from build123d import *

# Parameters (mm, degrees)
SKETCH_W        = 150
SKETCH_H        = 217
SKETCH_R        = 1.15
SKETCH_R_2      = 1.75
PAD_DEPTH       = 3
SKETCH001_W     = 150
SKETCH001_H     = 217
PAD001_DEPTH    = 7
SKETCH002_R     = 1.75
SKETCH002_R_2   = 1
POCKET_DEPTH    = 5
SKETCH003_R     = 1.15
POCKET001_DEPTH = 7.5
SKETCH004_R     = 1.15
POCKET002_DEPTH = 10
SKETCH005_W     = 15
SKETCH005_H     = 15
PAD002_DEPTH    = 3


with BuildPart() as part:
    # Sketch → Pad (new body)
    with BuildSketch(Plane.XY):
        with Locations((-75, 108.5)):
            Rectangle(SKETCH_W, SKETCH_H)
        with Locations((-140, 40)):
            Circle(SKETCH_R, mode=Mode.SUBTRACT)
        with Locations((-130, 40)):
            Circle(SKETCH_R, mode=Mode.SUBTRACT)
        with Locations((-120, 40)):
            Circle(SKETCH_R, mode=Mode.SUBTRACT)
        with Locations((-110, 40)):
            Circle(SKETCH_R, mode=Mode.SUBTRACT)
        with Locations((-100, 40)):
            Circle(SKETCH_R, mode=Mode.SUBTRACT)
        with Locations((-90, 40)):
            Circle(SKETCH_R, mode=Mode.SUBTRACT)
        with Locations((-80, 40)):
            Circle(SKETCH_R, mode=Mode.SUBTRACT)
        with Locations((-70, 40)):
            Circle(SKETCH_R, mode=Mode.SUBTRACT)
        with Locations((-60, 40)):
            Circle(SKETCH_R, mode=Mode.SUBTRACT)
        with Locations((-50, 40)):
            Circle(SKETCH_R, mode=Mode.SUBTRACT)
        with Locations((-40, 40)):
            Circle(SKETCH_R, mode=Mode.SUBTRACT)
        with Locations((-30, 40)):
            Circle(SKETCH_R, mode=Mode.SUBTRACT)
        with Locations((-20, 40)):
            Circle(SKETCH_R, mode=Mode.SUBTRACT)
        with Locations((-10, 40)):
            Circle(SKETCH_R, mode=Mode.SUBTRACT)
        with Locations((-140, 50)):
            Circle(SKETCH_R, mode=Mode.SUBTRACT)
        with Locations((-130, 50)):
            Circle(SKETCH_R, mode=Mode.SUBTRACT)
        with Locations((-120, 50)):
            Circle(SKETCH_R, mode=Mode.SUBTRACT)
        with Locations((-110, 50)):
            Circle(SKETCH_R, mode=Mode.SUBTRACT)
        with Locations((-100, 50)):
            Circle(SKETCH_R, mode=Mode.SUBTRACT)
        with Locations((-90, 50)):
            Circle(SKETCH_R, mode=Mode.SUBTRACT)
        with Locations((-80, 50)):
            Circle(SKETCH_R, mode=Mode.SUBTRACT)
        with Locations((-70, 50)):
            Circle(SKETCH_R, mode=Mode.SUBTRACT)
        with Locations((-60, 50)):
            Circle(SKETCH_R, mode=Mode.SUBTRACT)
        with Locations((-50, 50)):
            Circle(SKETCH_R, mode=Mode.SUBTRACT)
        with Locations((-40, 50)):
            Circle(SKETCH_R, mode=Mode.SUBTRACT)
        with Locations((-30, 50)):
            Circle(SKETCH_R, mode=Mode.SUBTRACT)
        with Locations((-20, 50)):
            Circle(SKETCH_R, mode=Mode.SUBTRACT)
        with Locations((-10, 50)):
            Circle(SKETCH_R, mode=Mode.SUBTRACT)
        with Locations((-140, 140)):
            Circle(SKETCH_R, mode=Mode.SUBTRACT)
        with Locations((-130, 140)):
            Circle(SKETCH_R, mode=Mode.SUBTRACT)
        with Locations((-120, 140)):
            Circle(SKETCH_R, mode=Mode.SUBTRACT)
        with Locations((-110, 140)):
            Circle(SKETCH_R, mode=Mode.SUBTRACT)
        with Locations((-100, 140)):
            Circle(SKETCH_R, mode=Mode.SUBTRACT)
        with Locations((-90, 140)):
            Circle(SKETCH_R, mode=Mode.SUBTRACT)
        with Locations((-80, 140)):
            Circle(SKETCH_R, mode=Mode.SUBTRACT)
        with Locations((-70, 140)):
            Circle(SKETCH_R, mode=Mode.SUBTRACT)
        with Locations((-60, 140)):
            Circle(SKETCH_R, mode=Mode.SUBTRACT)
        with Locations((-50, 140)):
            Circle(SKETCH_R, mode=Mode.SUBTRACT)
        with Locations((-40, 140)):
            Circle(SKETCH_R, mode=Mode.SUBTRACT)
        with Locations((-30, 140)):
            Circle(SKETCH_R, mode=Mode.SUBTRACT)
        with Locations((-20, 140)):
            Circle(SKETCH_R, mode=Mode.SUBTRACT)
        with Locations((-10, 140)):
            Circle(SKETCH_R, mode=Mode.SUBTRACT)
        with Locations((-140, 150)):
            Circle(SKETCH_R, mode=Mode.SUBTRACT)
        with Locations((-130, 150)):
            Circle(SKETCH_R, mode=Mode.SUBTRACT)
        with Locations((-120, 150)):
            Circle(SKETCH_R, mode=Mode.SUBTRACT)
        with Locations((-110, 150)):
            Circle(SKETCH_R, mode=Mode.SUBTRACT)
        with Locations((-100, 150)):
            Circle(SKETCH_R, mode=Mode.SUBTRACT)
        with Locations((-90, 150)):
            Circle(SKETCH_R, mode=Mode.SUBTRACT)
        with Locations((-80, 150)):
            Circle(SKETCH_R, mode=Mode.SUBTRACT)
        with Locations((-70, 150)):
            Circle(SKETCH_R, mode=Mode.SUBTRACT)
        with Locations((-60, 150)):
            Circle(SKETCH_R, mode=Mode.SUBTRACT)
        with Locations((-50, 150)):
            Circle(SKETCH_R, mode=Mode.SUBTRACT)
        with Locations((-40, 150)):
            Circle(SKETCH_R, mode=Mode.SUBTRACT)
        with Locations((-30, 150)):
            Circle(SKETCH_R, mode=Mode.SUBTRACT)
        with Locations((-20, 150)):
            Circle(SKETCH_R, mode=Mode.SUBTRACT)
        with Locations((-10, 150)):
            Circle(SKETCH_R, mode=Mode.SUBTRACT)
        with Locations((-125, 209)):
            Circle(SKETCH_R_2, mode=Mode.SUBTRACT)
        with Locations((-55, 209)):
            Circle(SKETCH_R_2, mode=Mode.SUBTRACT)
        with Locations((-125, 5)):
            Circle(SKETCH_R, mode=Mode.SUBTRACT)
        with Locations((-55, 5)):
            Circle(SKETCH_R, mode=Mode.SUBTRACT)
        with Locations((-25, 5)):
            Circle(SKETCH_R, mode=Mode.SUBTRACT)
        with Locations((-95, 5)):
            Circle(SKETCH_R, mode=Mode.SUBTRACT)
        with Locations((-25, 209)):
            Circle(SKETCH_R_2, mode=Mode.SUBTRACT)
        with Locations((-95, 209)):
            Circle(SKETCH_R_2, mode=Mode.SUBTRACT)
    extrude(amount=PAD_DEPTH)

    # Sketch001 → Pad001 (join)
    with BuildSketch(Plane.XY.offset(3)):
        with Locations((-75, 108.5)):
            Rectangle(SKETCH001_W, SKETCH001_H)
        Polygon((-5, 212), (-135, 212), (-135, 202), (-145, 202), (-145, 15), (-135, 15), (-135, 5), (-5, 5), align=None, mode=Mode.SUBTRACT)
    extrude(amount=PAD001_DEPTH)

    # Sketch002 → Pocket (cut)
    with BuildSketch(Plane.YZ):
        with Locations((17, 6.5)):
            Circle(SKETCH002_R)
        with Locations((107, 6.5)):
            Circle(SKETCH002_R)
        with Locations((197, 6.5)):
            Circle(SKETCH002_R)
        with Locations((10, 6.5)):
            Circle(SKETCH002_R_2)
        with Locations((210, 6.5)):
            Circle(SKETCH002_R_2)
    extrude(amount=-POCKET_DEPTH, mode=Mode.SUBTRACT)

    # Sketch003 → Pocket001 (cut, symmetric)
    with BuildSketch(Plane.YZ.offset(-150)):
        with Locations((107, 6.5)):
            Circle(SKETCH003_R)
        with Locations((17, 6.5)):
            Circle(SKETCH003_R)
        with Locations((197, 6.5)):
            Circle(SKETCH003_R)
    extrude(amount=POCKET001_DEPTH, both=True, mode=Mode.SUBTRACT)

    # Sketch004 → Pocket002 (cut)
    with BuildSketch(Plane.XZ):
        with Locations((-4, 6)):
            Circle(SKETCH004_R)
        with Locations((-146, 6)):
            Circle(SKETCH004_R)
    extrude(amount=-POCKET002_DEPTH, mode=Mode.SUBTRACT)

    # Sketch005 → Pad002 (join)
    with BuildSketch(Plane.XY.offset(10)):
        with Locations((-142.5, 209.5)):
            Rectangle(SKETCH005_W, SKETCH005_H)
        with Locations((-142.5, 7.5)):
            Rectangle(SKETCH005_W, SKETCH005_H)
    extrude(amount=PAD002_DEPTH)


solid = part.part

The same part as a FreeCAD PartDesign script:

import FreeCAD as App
import Part
import Sketcher

V = App.Vector


def add_polygon(sketch, points):
    """Adds a closed chain of lines whose ends are joined by coincident constraints."""
    first, n = sketch.GeometryCount, len(points)
    for a, b in zip(points, points[1:] + points[:1]):
        sketch.addGeometry(Part.LineSegment(App.Vector(*a, 0), App.Vector(*b, 0)), False)
    for i in range(n):
        sketch.addConstraint(Sketcher.Constraint("Coincident", first + i, 2, first + (i + 1) % n, 1))

doc = App.newDocument("Part")
params = doc.addObject("Spreadsheet::Sheet", "Params")
for row, (alias, value) in enumerate([
    ("sketch1_diameter", "2.3 mm"),
    ("sketch1_diameter2", "3.5 mm"),
    ("sketch1_width", "150 mm"),
    ("sketch1_height", "217 mm"),
    ("pad1_length", "3 mm"),
    ("sketch2_width", "150 mm"),
    ("sketch2_width2", "130 mm"),
    ("sketch2_width3", "10 mm"),
    ("sketch2_height", "217 mm"),
    ("sketch2_height2", "207 mm"),
    ("pad2_length", "7 mm"),
    ("sketch3_diameter", "2 mm"),
    ("sketch3_diameter2", "3.5 mm"),
    ("pocket1_length", "5 mm"),
    ("sketch4_diameter", "2.3 mm"),
    ("pocket2_length", "15 mm"),
    ("sketch5_diameter", "2.3 mm"),
    ("pocket3_length", "10 mm"),
    ("sketch6_width", "15 mm"),
    ("pad3_length", "3 mm"),
], start=1):
    params.set(f"A{row}", alias)
    params.set(f"B{row}", "=" + value)
    params.setAlias(f"B{row}", alias)

body = doc.addObject("PartDesign::Body", "Body")

# Sketch on XY plane
sketch1 = body.newObject("Sketcher::SketchObject", "Sketch")
sketch1.AttachmentSupport = (doc.getObject("XY_Plane"), [""])
sketch1.MapMode = "FlatFace"
add_polygon(sketch1, [(-150, 217), (-150, 0), (0, 0), (0, 217)])  # lines 0-3
sketch1.addGeometry(Part.Circle(V(-125, 5, 0), V(0, 0, 1), 1.15), False)  # 4
sketch1.addGeometry(Part.Circle(V(-140, 40, 0), V(0, 0, 1), 1.15), False)  # 5
sketch1.addGeometry(Part.Circle(V(-130, 40, 0), V(0, 0, 1), 1.15), False)  # 6
sketch1.addGeometry(Part.Circle(V(-140, 50, 0), V(0, 0, 1), 1.15), False)  # 7
sketch1.addGeometry(Part.Circle(V(-130, 50, 0), V(0, 0, 1), 1.15), False)  # 8
sketch1.addGeometry(Part.Circle(V(-120, 40, 0), V(0, 0, 1), 1.15), False)  # 9
sketch1.addGeometry(Part.Circle(V(-110, 40, 0), V(0, 0, 1), 1.15), False)  # 10
sketch1.addGeometry(Part.Circle(V(-120, 50, 0), V(0, 0, 1), 1.15), False)  # 11
sketch1.addGeometry(Part.Circle(V(-110, 50, 0), V(0, 0, 1), 1.15), False)  # 12
sketch1.addGeometry(Part.Circle(V(-95, 5, 0), V(0, 0, 1), 1.15), False)  # 13
sketch1.addGeometry(Part.Circle(V(-100, 40, 0), V(0, 0, 1), 1.15), False)  # 14
sketch1.addGeometry(Part.Circle(V(-100, 50, 0), V(0, 0, 1), 1.15), False)  # 15
sketch1.addGeometry(Part.Circle(V(-90, 40, 0), V(0, 0, 1), 1.15), False)  # 16
sketch1.addGeometry(Part.Circle(V(-80, 40, 0), V(0, 0, 1), 1.15), False)  # 17
sketch1.addGeometry(Part.Circle(V(-90, 50, 0), V(0, 0, 1), 1.15), False)  # 18
sketch1.addGeometry(Part.Circle(V(-80, 50, 0), V(0, 0, 1), 1.15), False)  # 19
sketch1.addGeometry(Part.Circle(V(-55, 5, 0), V(0, 0, 1), 1.15), False)  # 20
sketch1.addGeometry(Part.Circle(V(-70, 40, 0), V(0, 0, 1), 1.15), False)  # 21
sketch1.addGeometry(Part.Circle(V(-60, 40, 0), V(0, 0, 1), 1.15), False)  # 22
sketch1.addGeometry(Part.Circle(V(-70, 50, 0), V(0, 0, 1), 1.15), False)  # 23
sketch1.addGeometry(Part.Circle(V(-60, 50, 0), V(0, 0, 1), 1.15), False)  # 24
sketch1.addGeometry(Part.Circle(V(-50, 40, 0), V(0, 0, 1), 1.15), False)  # 25
sketch1.addGeometry(Part.Circle(V(-50, 50, 0), V(0, 0, 1), 1.15), False)  # 26
sketch1.addGeometry(Part.Circle(V(-25, 5, 0), V(0, 0, 1), 1.15), False)  # 27
sketch1.addGeometry(Part.Circle(V(-40, 40, 0), V(0, 0, 1), 1.15), False)  # 28
sketch1.addGeometry(Part.Circle(V(-30, 40, 0), V(0, 0, 1), 1.15), False)  # 29
sketch1.addGeometry(Part.Circle(V(-40, 50, 0), V(0, 0, 1), 1.15), False)  # 30
sketch1.addGeometry(Part.Circle(V(-30, 50, 0), V(0, 0, 1), 1.15), False)  # 31
sketch1.addGeometry(Part.Circle(V(-20, 40, 0), V(0, 0, 1), 1.15), False)  # 32
sketch1.addGeometry(Part.Circle(V(-10, 40, 0), V(0, 0, 1), 1.15), False)  # 33
sketch1.addGeometry(Part.Circle(V(-20, 50, 0), V(0, 0, 1), 1.15), False)  # 34
sketch1.addGeometry(Part.Circle(V(-10, 50, 0), V(0, 0, 1), 1.15), False)  # 35
sketch1.addGeometry(Part.Circle(V(-140, 140, 0), V(0, 0, 1), 1.15), False)  # 36
sketch1.addGeometry(Part.Circle(V(-130, 140, 0), V(0, 0, 1), 1.15), False)  # 37
sketch1.addGeometry(Part.Circle(V(-140, 150, 0), V(0, 0, 1), 1.15), False)  # 38
sketch1.addGeometry(Part.Circle(V(-130, 150, 0), V(0, 0, 1), 1.15), False)  # 39
sketch1.addGeometry(Part.Circle(V(-120, 140, 0), V(0, 0, 1), 1.15), False)  # 40
sketch1.addGeometry(Part.Circle(V(-110, 140, 0), V(0, 0, 1), 1.15), False)  # 41
sketch1.addGeometry(Part.Circle(V(-120, 150, 0), V(0, 0, 1), 1.15), False)  # 42
sketch1.addGeometry(Part.Circle(V(-110, 150, 0), V(0, 0, 1), 1.15), False)  # 43
sketch1.addGeometry(Part.Circle(V(-100, 140, 0), V(0, 0, 1), 1.15), False)  # 44
sketch1.addGeometry(Part.Circle(V(-100, 150, 0), V(0, 0, 1), 1.15), False)  # 45
sketch1.addGeometry(Part.Circle(V(-90, 140, 0), V(0, 0, 1), 1.15), False)  # 46
sketch1.addGeometry(Part.Circle(V(-80, 140, 0), V(0, 0, 1), 1.15), False)  # 47
sketch1.addGeometry(Part.Circle(V(-90, 150, 0), V(0, 0, 1), 1.15), False)  # 48
sketch1.addGeometry(Part.Circle(V(-80, 150, 0), V(0, 0, 1), 1.15), False)  # 49
sketch1.addGeometry(Part.Circle(V(-125, 209, 0), V(0, 0, 1), 1.75), False)  # 50
sketch1.addGeometry(Part.Circle(V(-95, 209, 0), V(0, 0, 1), 1.75), False)  # 51
sketch1.addGeometry(Part.Circle(V(-70, 140, 0), V(0, 0, 1), 1.15), False)  # 52
sketch1.addGeometry(Part.Circle(V(-60, 140, 0), V(0, 0, 1), 1.15), False)  # 53
sketch1.addGeometry(Part.Circle(V(-70, 150, 0), V(0, 0, 1), 1.15), False)  # 54
sketch1.addGeometry(Part.Circle(V(-60, 150, 0), V(0, 0, 1), 1.15), False)  # 55
sketch1.addGeometry(Part.Circle(V(-50, 140, 0), V(0, 0, 1), 1.15), False)  # 56
sketch1.addGeometry(Part.Circle(V(-50, 150, 0), V(0, 0, 1), 1.15), False)  # 57
sketch1.addGeometry(Part.Circle(V(-40, 140, 0), V(0, 0, 1), 1.15), False)  # 58
sketch1.addGeometry(Part.Circle(V(-30, 140, 0), V(0, 0, 1), 1.15), False)  # 59
sketch1.addGeometry(Part.Circle(V(-40, 150, 0), V(0, 0, 1), 1.15), False)  # 60
sketch1.addGeometry(Part.Circle(V(-30, 150, 0), V(0, 0, 1), 1.15), False)  # 61
sketch1.addGeometry(Part.Circle(V(-20, 140, 0), V(0, 0, 1), 1.15), False)  # 62
sketch1.addGeometry(Part.Circle(V(-10, 140, 0), V(0, 0, 1), 1.15), False)  # 63
sketch1.addGeometry(Part.Circle(V(-20, 150, 0), V(0, 0, 1), 1.15), False)  # 64
sketch1.addGeometry(Part.Circle(V(-10, 150, 0), V(0, 0, 1), 1.15), False)  # 65
sketch1.addGeometry(Part.Circle(V(-55, 209, 0), V(0, 0, 1), 1.75), False)  # 66
sketch1.addGeometry(Part.Circle(V(-25, 209, 0), V(0, 0, 1), 1.75), False)  # 67
sketch1.addConstraint(Sketcher.Constraint("Vertical", 0))
sketch1.addConstraint(Sketcher.Constraint("Horizontal", 1))
sketch1.addConstraint(Sketcher.Constraint("Vertical", 2))
sketch1.addConstraint(Sketcher.Constraint("Horizontal", 3))
sketch1.addConstraint(Sketcher.Constraint("Coincident", 1, 2, -1, 1))
sketch1.addConstraint(Sketcher.Constraint("Equal", 4, 5))
sketch1.addConstraint(Sketcher.Constraint("Equal", 5, 6))
sketch1.addConstraint(Sketcher.Constraint("Equal", 6, 7))
sketch1.addConstraint(Sketcher.Constraint("Equal", 7, 8))
sketch1.addConstraint(Sketcher.Constraint("Equal", 8, 9))
sketch1.addConstraint(Sketcher.Constraint("Equal", 9, 10))
sketch1.addConstraint(Sketcher.Constraint("Equal", 10, 11))
sketch1.addConstraint(Sketcher.Constraint("Equal", 11, 12))
sketch1.addConstraint(Sketcher.Constraint("Equal", 12, 13))
sketch1.addConstraint(Sketcher.Constraint("Equal", 13, 14))
sketch1.addConstraint(Sketcher.Constraint("Equal", 14, 15))
sketch1.addConstraint(Sketcher.Constraint("Equal", 15, 16))
sketch1.addConstraint(Sketcher.Constraint("Equal", 16, 17))
sketch1.addConstraint(Sketcher.Constraint("Equal", 17, 18))
sketch1.addConstraint(Sketcher.Constraint("Equal", 18, 19))
sketch1.addConstraint(Sketcher.Constraint("Equal", 19, 20))
sketch1.addConstraint(Sketcher.Constraint("Equal", 20, 21))
sketch1.addConstraint(Sketcher.Constraint("Equal", 21, 22))
sketch1.addConstraint(Sketcher.Constraint("Equal", 22, 23))
sketch1.addConstraint(Sketcher.Constraint("Equal", 23, 24))
sketch1.addConstraint(Sketcher.Constraint("Equal", 24, 25))
sketch1.addConstraint(Sketcher.Constraint("Equal", 25, 26))
sketch1.addConstraint(Sketcher.Constraint("Equal", 26, 27))
sketch1.addConstraint(Sketcher.Constraint("Equal", 27, 28))
sketch1.addConstraint(Sketcher.Constraint("Equal", 28, 29))
sketch1.addConstraint(Sketcher.Constraint("Equal", 29, 30))
sketch1.addConstraint(Sketcher.Constraint("Equal", 30, 31))
sketch1.addConstraint(Sketcher.Constraint("Equal", 31, 32))
sketch1.addConstraint(Sketcher.Constraint("Equal", 32, 33))
sketch1.addConstraint(Sketcher.Constraint("Equal", 33, 34))
sketch1.addConstraint(Sketcher.Constraint("Equal", 34, 35))
sketch1.addConstraint(Sketcher.Constraint("Equal", 35, 36))
sketch1.addConstraint(Sketcher.Constraint("Equal", 36, 37))
sketch1.addConstraint(Sketcher.Constraint("Equal", 37, 38))
sketch1.addConstraint(Sketcher.Constraint("Equal", 38, 39))
sketch1.addConstraint(Sketcher.Constraint("Equal", 39, 40))
sketch1.addConstraint(Sketcher.Constraint("Equal", 40, 41))
sketch1.addConstraint(Sketcher.Constraint("Equal", 41, 42))
sketch1.addConstraint(Sketcher.Constraint("Equal", 42, 43))
sketch1.addConstraint(Sketcher.Constraint("Equal", 43, 44))
sketch1.addConstraint(Sketcher.Constraint("Equal", 44, 45))
sketch1.addConstraint(Sketcher.Constraint("Equal", 45, 46))
sketch1.addConstraint(Sketcher.Constraint("Equal", 46, 47))
sketch1.addConstraint(Sketcher.Constraint("Equal", 47, 48))
sketch1.addConstraint(Sketcher.Constraint("Equal", 48, 49))
sketch1.addConstraint(Sketcher.Constraint("Equal", 50, 51))
sketch1.addConstraint(Sketcher.Constraint("Equal", 49, 52))
sketch1.addConstraint(Sketcher.Constraint("Equal", 52, 53))
sketch1.addConstraint(Sketcher.Constraint("Equal", 53, 54))
sketch1.addConstraint(Sketcher.Constraint("Equal", 54, 55))
sketch1.addConstraint(Sketcher.Constraint("Equal", 55, 56))
sketch1.addConstraint(Sketcher.Constraint("Equal", 56, 57))
sketch1.addConstraint(Sketcher.Constraint("Equal", 57, 58))
sketch1.addConstraint(Sketcher.Constraint("Equal", 58, 59))
sketch1.addConstraint(Sketcher.Constraint("Equal", 59, 60))
sketch1.addConstraint(Sketcher.Constraint("Equal", 60, 61))
sketch1.addConstraint(Sketcher.Constraint("Equal", 61, 62))
sketch1.addConstraint(Sketcher.Constraint("Equal", 62, 63))
sketch1.addConstraint(Sketcher.Constraint("Equal", 63, 64))
sketch1.addConstraint(Sketcher.Constraint("Equal", 64, 65))
sketch1.addConstraint(Sketcher.Constraint("Equal", 51, 66))
sketch1.addConstraint(Sketcher.Constraint("Equal", 66, 67))
sketch1.addConstraint(Sketcher.Constraint("Horizontal", 5, 3, 6, 3))
sketch1.addConstraint(Sketcher.Constraint("Horizontal", 7, 3, 8, 3))
sketch1.addConstraint(Sketcher.Constraint("Horizontal", 6, 3, 9, 3))
sketch1.addConstraint(Sketcher.Constraint("Horizontal", 9, 3, 10, 3))
sketch1.addConstraint(Sketcher.Constraint("Horizontal", 8, 3, 11, 3))
sketch1.addConstraint(Sketcher.Constraint("Horizontal", 11, 3, 12, 3))
sketch1.addConstraint(Sketcher.Constraint("Horizontal", 4, 3, 13, 3))
sketch1.addConstraint(Sketcher.Constraint("Horizontal", 10, 3, 14, 3))
sketch1.addConstraint(Sketcher.Constraint("Horizontal", 12, 3, 15, 3))
sketch1.addConstraint(Sketcher.Constraint("Horizontal", 14, 3, 16, 3))
sketch1.addConstraint(Sketcher.Constraint("Horizontal", 16, 3, 17, 3))
sketch1.addConstraint(Sketcher.Constraint("Horizontal", 15, 3, 18, 3))
sketch1.addConstraint(Sketcher.Constraint("Horizontal", 18, 3, 19, 3))
sketch1.addConstraint(Sketcher.Constraint("Horizontal", 13, 3, 20, 3))
sketch1.addConstraint(Sketcher.Constraint("Horizontal", 17, 3, 21, 3))
sketch1.addConstraint(Sketcher.Constraint("Horizontal", 21, 3, 22, 3))
sketch1.addConstraint(Sketcher.Constraint("Horizontal", 19, 3, 23, 3))
sketch1.addConstraint(Sketcher.Constraint("Horizontal", 23, 3, 24, 3))
sketch1.addConstraint(Sketcher.Constraint("Horizontal", 22, 3, 25, 3))
sketch1.addConstraint(Sketcher.Constraint("Horizontal", 24, 3, 26, 3))
sketch1.addConstraint(Sketcher.Constraint("Horizontal", 20, 3, 27, 3))
sketch1.addConstraint(Sketcher.Constraint("Horizontal", 25, 3, 28, 3))
sketch1.addConstraint(Sketcher.Constraint("Horizontal", 28, 3, 29, 3))
sketch1.addConstraint(Sketcher.Constraint("Horizontal", 26, 3, 30, 3))
sketch1.addConstraint(Sketcher.Constraint("Horizontal", 30, 3, 31, 3))
sketch1.addConstraint(Sketcher.Constraint("Horizontal", 29, 3, 32, 3))
sketch1.addConstraint(Sketcher.Constraint("Horizontal", 32, 3, 33, 3))
sketch1.addConstraint(Sketcher.Constraint("Horizontal", 31, 3, 34, 3))
sketch1.addConstraint(Sketcher.Constraint("Horizontal", 34, 3, 35, 3))
sketch1.addConstraint(Sketcher.Constraint("Horizontal", 36, 3, 37, 3))
sketch1.addConstraint(Sketcher.Constraint("Horizontal", 38, 3, 39, 3))
sketch1.addConstraint(Sketcher.Constraint("Horizontal", 37, 3, 40, 3))
sketch1.addConstraint(Sketcher.Constraint("Horizontal", 40, 3, 41, 3))
sketch1.addConstraint(Sketcher.Constraint("Horizontal", 39, 3, 42, 3))
sketch1.addConstraint(Sketcher.Constraint("Horizontal", 42, 3, 43, 3))
sketch1.addConstraint(Sketcher.Constraint("Horizontal", 41, 3, 44, 3))
sketch1.addConstraint(Sketcher.Constraint("Horizontal", 43, 3, 45, 3))
sketch1.addConstraint(Sketcher.Constraint("Horizontal", 44, 3, 46, 3))
sketch1.addConstraint(Sketcher.Constraint("Horizontal", 46, 3, 47, 3))
sketch1.addConstraint(Sketcher.Constraint("Horizontal", 45, 3, 48, 3))
sketch1.addConstraint(Sketcher.Constraint("Horizontal", 48, 3, 49, 3))
sketch1.addConstraint(Sketcher.Constraint("Horizontal", 50, 3, 51, 3))
sketch1.addConstraint(Sketcher.Constraint("Horizontal", 47, 3, 52, 3))
sketch1.addConstraint(Sketcher.Constraint("Horizontal", 52, 3, 53, 3))
sketch1.addConstraint(Sketcher.Constraint("Horizontal", 49, 3, 54, 3))
sketch1.addConstraint(Sketcher.Constraint("Horizontal", 54, 3, 55, 3))
sketch1.addConstraint(Sketcher.Constraint("Horizontal", 53, 3, 56, 3))
sketch1.addConstraint(Sketcher.Constraint("Horizontal", 55, 3, 57, 3))
sketch1.addConstraint(Sketcher.Constraint("Horizontal", 56, 3, 58, 3))
sketch1.addConstraint(Sketcher.Constraint("Horizontal", 58, 3, 59, 3))
sketch1.addConstraint(Sketcher.Constraint("Horizontal", 57, 3, 60, 3))
sketch1.addConstraint(Sketcher.Constraint("Horizontal", 60, 3, 61, 3))
sketch1.addConstraint(Sketcher.Constraint("Horizontal", 59, 3, 62, 3))
sketch1.addConstraint(Sketcher.Constraint("Horizontal", 62, 3, 63, 3))
sketch1.addConstraint(Sketcher.Constraint("Horizontal", 61, 3, 64, 3))
sketch1.addConstraint(Sketcher.Constraint("Horizontal", 64, 3, 65, 3))
sketch1.addConstraint(Sketcher.Constraint("Horizontal", 51, 3, 66, 3))
sketch1.addConstraint(Sketcher.Constraint("Horizontal", 66, 3, 67, 3))
sketch1.addConstraint(Sketcher.Constraint("Vertical", 5, 3, 7, 3))
sketch1.addConstraint(Sketcher.Constraint("Vertical", 6, 3, 8, 3))
sketch1.addConstraint(Sketcher.Constraint("Vertical", 9, 3, 11, 3))
sketch1.addConstraint(Sketcher.Constraint("Vertical", 10, 3, 12, 3))
sketch1.addConstraint(Sketcher.Constraint("Vertical", 14, 3, 15, 3))
sketch1.addConstraint(Sketcher.Constraint("Vertical", 16, 3, 18, 3))
sketch1.addConstraint(Sketcher.Constraint("Vertical", 17, 3, 19, 3))
sketch1.addConstraint(Sketcher.Constraint("Vertical", 21, 3, 23, 3))
sketch1.addConstraint(Sketcher.Constraint("Vertical", 22, 3, 24, 3))
sketch1.addConstraint(Sketcher.Constraint("Vertical", 25, 3, 26, 3))
sketch1.addConstraint(Sketcher.Constraint("Vertical", 28, 3, 30, 3))
sketch1.addConstraint(Sketcher.Constraint("Vertical", 29, 3, 31, 3))
sketch1.addConstraint(Sketcher.Constraint("Vertical", 32, 3, 34, 3))
sketch1.addConstraint(Sketcher.Constraint("Vertical", 33, 3, 35, 3))
sketch1.addConstraint(Sketcher.Constraint("Vertical", 7, 3, 36, 3))
sketch1.addConstraint(Sketcher.Constraint("Vertical", 8, 3, 37, 3))
sketch1.addConstraint(Sketcher.Constraint("Vertical", 36, 3, 38, 3))
sketch1.addConstraint(Sketcher.Constraint("Vertical", 37, 3, 39, 3))
sketch1.addConstraint(Sketcher.Constraint("Vertical", 11, 3, 40, 3))
sketch1.addConstraint(Sketcher.Constraint("Vertical", 12, 3, 41, 3))
sketch1.addConstraint(Sketcher.Constraint("Vertical", 40, 3, 42, 3))
sketch1.addConstraint(Sketcher.Constraint("Vertical", 41, 3, 43, 3))
sketch1.addConstraint(Sketcher.Constraint("Vertical", 15, 3, 44, 3))
sketch1.addConstraint(Sketcher.Constraint("Vertical", 44, 3, 45, 3))
sketch1.addConstraint(Sketcher.Constraint("Vertical", 18, 3, 46, 3))
sketch1.addConstraint(Sketcher.Constraint("Vertical", 19, 3, 47, 3))
sketch1.addConstraint(Sketcher.Constraint("Vertical", 46, 3, 48, 3))
sketch1.addConstraint(Sketcher.Constraint("Vertical", 47, 3, 49, 3))
sketch1.addConstraint(Sketcher.Constraint("Vertical", 4, 3, 50, 3))
sketch1.addConstraint(Sketcher.Constraint("Vertical", 13, 3, 51, 3))
sketch1.addConstraint(Sketcher.Constraint("Vertical", 23, 3, 52, 3))
sketch1.addConstraint(Sketcher.Constraint("Vertical", 24, 3, 53, 3))
sketch1.addConstraint(Sketcher.Constraint("Vertical", 52, 3, 54, 3))
sketch1.addConstraint(Sketcher.Constraint("Vertical", 53, 3, 55, 3))
sketch1.addConstraint(Sketcher.Constraint("Vertical", 26, 3, 56, 3))
sketch1.addConstraint(Sketcher.Constraint("Vertical", 56, 3, 57, 3))
sketch1.addConstraint(Sketcher.Constraint("Vertical", 30, 3, 58, 3))
sketch1.addConstraint(Sketcher.Constraint("Vertical", 31, 3, 59, 3))
sketch1.addConstraint(Sketcher.Constraint("Vertical", 58, 3, 60, 3))
sketch1.addConstraint(Sketcher.Constraint("Vertical", 59, 3, 61, 3))
sketch1.addConstraint(Sketcher.Constraint("Vertical", 34, 3, 62, 3))
sketch1.addConstraint(Sketcher.Constraint("Vertical", 35, 3, 63, 3))
sketch1.addConstraint(Sketcher.Constraint("Vertical", 62, 3, 64, 3))
sketch1.addConstraint(Sketcher.Constraint("Vertical", 63, 3, 65, 3))
sketch1.addConstraint(Sketcher.Constraint("Vertical", 20, 3, 66, 3))
sketch1.addConstraint(Sketcher.Constraint("Vertical", 27, 3, 67, 3))
sketch1.addConstraint(Sketcher.Constraint("Diameter", 4, 2.3))
sketch1.addConstraint(Sketcher.Constraint("Diameter", 50, 3.5))
sketch1.addConstraint(Sketcher.Constraint("DistanceX", 1, 1, 1, 2, 150.0))
sketch1.addConstraint(Sketcher.Constraint("DistanceY", 0, 2, 0, 1, 217.0))
sketch1.addConstraint(Sketcher.Constraint("DistanceX", 4, 3, -1, 1, 125.0))
sketch1.addConstraint(Sketcher.Constraint("DistanceY", -1, 1, 4, 3, 5.0))
sketch1.addConstraint(Sketcher.Constraint("DistanceX", 5, 3, -1, 1, 140.0))
sketch1.addConstraint(Sketcher.Constraint("DistanceY", -1, 1, 5, 3, 40.0))
sketch1.addConstraint(Sketcher.Constraint("DistanceX", 6, 3, -1, 1, 130.0))
sketch1.addConstraint(Sketcher.Constraint("DistanceY", -1, 1, 7, 3, 50.0))
sketch1.addConstraint(Sketcher.Constraint("DistanceX", 9, 3, -1, 1, 120.0))
sketch1.addConstraint(Sketcher.Constraint("DistanceX", 10, 3, -1, 1, 110.0))
sketch1.addConstraint(Sketcher.Constraint("DistanceX", 13, 3, -1, 1, 95.0))
sketch1.addConstraint(Sketcher.Constraint("DistanceX", 14, 3, -1, 1, 100.0))
sketch1.addConstraint(Sketcher.Constraint("DistanceX", 16, 3, -1, 1, 90.0))
sketch1.addConstraint(Sketcher.Constraint("DistanceX", 17, 3, -1, 1, 80.0))
sketch1.addConstraint(Sketcher.Constraint("DistanceX", 20, 3, -1, 1, 55.0))
sketch1.addConstraint(Sketcher.Constraint("DistanceX", 21, 3, -1, 1, 70.0))
sketch1.addConstraint(Sketcher.Constraint("DistanceX", 22, 3, -1, 1, 60.0))
sketch1.addConstraint(Sketcher.Constraint("DistanceX", 25, 3, -1, 1, 50.0))
sketch1.addConstraint(Sketcher.Constraint("DistanceX", 27, 3, -1, 1, 25.0))
sketch1.addConstraint(Sketcher.Constraint("DistanceX", 28, 3, -1, 1, 40.0))
sketch1.addConstraint(Sketcher.Constraint("DistanceX", 29, 3, -1, 1, 30.0))
sketch1.addConstraint(Sketcher.Constraint("DistanceX", 32, 3, -1, 1, 20.0))
sketch1.addConstraint(Sketcher.Constraint("DistanceX", 33, 3, -1, 1, 10.0))
sketch1.addConstraint(Sketcher.Constraint("DistanceY", -1, 1, 36, 3, 140.0))
sketch1.addConstraint(Sketcher.Constraint("DistanceY", -1, 1, 38, 3, 150.0))
sketch1.addConstraint(Sketcher.Constraint("DistanceY", -1, 1, 50, 3, 209.0))
sketch1.setExpression("Constraints[175]", "Params.sketch1_diameter")
sketch1.setExpression("Constraints[176]", "Params.sketch1_diameter2")
sketch1.setExpression("Constraints[177]", "Params.sketch1_width")
sketch1.setExpression("Constraints[178]", "Params.sketch1_height")
pad1 = body.newObject("PartDesign::Pad", "Pad")
pad1.Profile = sketch1
pad1.setExpression("Length", "Params.pad1_length")

# Sketch on XY plane
sketch2 = body.newObject("Sketcher::SketchObject", "Sketch001")
sketch2.AttachmentSupport = (doc.getObject("XY_Plane"), [""])
sketch2.MapMode = "FlatFace"
sketch2.AttachmentOffset = App.Placement(V(0, 0, 3), App.Rotation())
add_polygon(sketch2, [(-150, 217), (-150, 0), (0, 0), (0, 217)])  # lines 0-3
add_polygon(sketch2, [(-135, 212), (-5, 212), (-5, 5), (-135, 5), (-135, 15), (-145, 15), (-145, 202), (-135, 202)])  # lines 4-11
sketch2.addConstraint(Sketcher.Constraint("Vertical", 0))
sketch2.addConstraint(Sketcher.Constraint("Horizontal", 1))
sketch2.addConstraint(Sketcher.Constraint("Vertical", 2))
sketch2.addConstraint(Sketcher.Constraint("Horizontal", 3))
sketch2.addConstraint(Sketcher.Constraint("Horizontal", 4))
sketch2.addConstraint(Sketcher.Constraint("Vertical", 5))
sketch2.addConstraint(Sketcher.Constraint("Horizontal", 6))
sketch2.addConstraint(Sketcher.Constraint("Vertical", 7))
sketch2.addConstraint(Sketcher.Constraint("Horizontal", 8))
sketch2.addConstraint(Sketcher.Constraint("Vertical", 9))
sketch2.addConstraint(Sketcher.Constraint("Horizontal", 10))
sketch2.addConstraint(Sketcher.Constraint("Vertical", 11))
sketch2.addConstraint(Sketcher.Constraint("Coincident", 1, 2, -1, 1))
sketch2.addConstraint(Sketcher.Constraint("Vertical", 7, 2, 10, 2))
sketch2.addConstraint(Sketcher.Constraint("Equal", 10, 7))
sketch2.addConstraint(Sketcher.Constraint("Equal", 7, 11))
sketch2.addConstraint(Sketcher.Constraint("DistanceX", 1, 1, 1, 2, 150.0))
sketch2.addConstraint(Sketcher.Constraint("DistanceX", 4, 1, 4, 2, 130.0))
sketch2.addConstraint(Sketcher.Constraint("DistanceX", 8, 2, 8, 1, 10.0))
sketch2.addConstraint(Sketcher.Constraint("DistanceY", 0, 2, 0, 1, 217.0))
sketch2.addConstraint(Sketcher.Constraint("DistanceY", 5, 2, 5, 1, 207.0))
sketch2.addConstraint(Sketcher.Constraint("DistanceX", 4, 2, -1, 1, 5.0))
sketch2.addConstraint(Sketcher.Constraint("DistanceY", -1, 1, 4, 2, 212.0))
sketch2.setExpression("Constraints[28]", "Params.sketch2_width")
sketch2.setExpression("Constraints[29]", "Params.sketch2_width2")
sketch2.setExpression("Constraints[30]", "Params.sketch2_width3")
sketch2.setExpression("Constraints[31]", "Params.sketch2_height")
sketch2.setExpression("Constraints[32]", "Params.sketch2_height2")
pad2 = body.newObject("PartDesign::Pad", "Pad001")
pad2.Profile = sketch2
pad2.setExpression("Length", "Params.pad2_length")

# Sketch on YZ plane
sketch3 = body.newObject("Sketcher::SketchObject", "Sketch002")
sketch3.AttachmentSupport = (doc.getObject("YZ_Plane"), [""])
sketch3.MapMode = "FlatFace"
sketch3.addGeometry(Part.Circle(V(17, 6.5, 0), V(0, 0, 1), 1.75), False)
sketch3.addGeometry(Part.Circle(V(107, 6.5, 0), V(0, 0, 1), 1.75), False)
sketch3.addGeometry(Part.Circle(V(197, 6.5, 0), V(0, 0, 1), 1.75), False)
sketch3.addGeometry(Part.Circle(V(10, 6.5, 0), V(0, 0, 1), 1), False)
sketch3.addGeometry(Part.Circle(V(210, 6.5, 0), V(0, 0, 1), 1), False)
sketch3.addConstraint(Sketcher.Constraint("Equal", 0, 1))
sketch3.addConstraint(Sketcher.Constraint("Equal", 1, 2))
sketch3.addConstraint(Sketcher.Constraint("Equal", 3, 4))
sketch3.addConstraint(Sketcher.Constraint("Horizontal", 0, 3, 1, 3))
sketch3.addConstraint(Sketcher.Constraint("Horizontal", 1, 3, 2, 3))
sketch3.addConstraint(Sketcher.Constraint("Horizontal", 2, 3, 3, 3))
sketch3.addConstraint(Sketcher.Constraint("Horizontal", 3, 3, 4, 3))
sketch3.addConstraint(Sketcher.Constraint("Diameter", 3, 2.0))
sketch3.addConstraint(Sketcher.Constraint("Diameter", 0, 3.5))
sketch3.addConstraint(Sketcher.Constraint("DistanceX", -1, 1, 0, 3, 17.0))
sketch3.addConstraint(Sketcher.Constraint("DistanceX", -1, 1, 1, 3, 107.0))
sketch3.addConstraint(Sketcher.Constraint("DistanceX", -1, 1, 2, 3, 197.0))
sketch3.addConstraint(Sketcher.Constraint("DistanceX", -1, 1, 3, 3, 10.0))
sketch3.addConstraint(Sketcher.Constraint("DistanceX", -1, 1, 4, 3, 210.0))
sketch3.addConstraint(Sketcher.Constraint("DistanceY", -1, 1, 0, 3, 6.5))
sketch3.setExpression("Constraints[7]", "Params.sketch3_diameter")
sketch3.setExpression("Constraints[8]", "Params.sketch3_diameter2")
pocket1 = body.newObject("PartDesign::Pocket", "Pocket")
pocket1.Profile = sketch3
pocket1.setExpression("Length", "Params.pocket1_length")

# Sketch on YZ plane
sketch4 = body.newObject("Sketcher::SketchObject", "Sketch003")
sketch4.AttachmentSupport = (doc.getObject("YZ_Plane"), [""])
sketch4.MapMode = "FlatFace"
sketch4.AttachmentOffset = App.Placement(V(0, 0, -150), App.Rotation())
sketch4.addGeometry(Part.Circle(V(107, 6.5, 0), V(0, 0, 1), 1.15), False)
sketch4.addGeometry(Part.Circle(V(17, 6.5, 0), V(0, 0, 1), 1.15), False)
sketch4.addGeometry(Part.Circle(V(197, 6.5, 0), V(0, 0, 1), 1.15), False)
sketch4.addConstraint(Sketcher.Constraint("Equal", 0, 1))
sketch4.addConstraint(Sketcher.Constraint("Equal", 1, 2))
sketch4.addConstraint(Sketcher.Constraint("Horizontal", 0, 3, 1, 3))
sketch4.addConstraint(Sketcher.Constraint("Horizontal", 1, 3, 2, 3))
sketch4.addConstraint(Sketcher.Constraint("Diameter", 0, 2.3))
sketch4.addConstraint(Sketcher.Constraint("DistanceX", -1, 1, 0, 3, 107.0))
sketch4.addConstraint(Sketcher.Constraint("DistanceX", -1, 1, 1, 3, 17.0))
sketch4.addConstraint(Sketcher.Constraint("DistanceX", -1, 1, 2, 3, 197.0))
sketch4.addConstraint(Sketcher.Constraint("DistanceY", -1, 1, 0, 3, 6.5))
sketch4.setExpression("Constraints[4]", "Params.sketch4_diameter")
pocket2 = body.newObject("PartDesign::Pocket", "Pocket001")
pocket2.Profile = sketch4
pocket2.setExpression("Length", "Params.pocket2_length")
pocket2.Midplane = True

# Sketch on XZ plane
sketch5 = body.newObject("Sketcher::SketchObject", "Sketch004")
sketch5.AttachmentSupport = (doc.getObject("XZ_Plane"), [""])
sketch5.MapMode = "FlatFace"
sketch5.addGeometry(Part.Circle(V(-4, 6, 0), V(0, 0, 1), 1.15), False)
sketch5.addGeometry(Part.Circle(V(-146, 6, 0), V(0, 0, 1), 1.15), False)
sketch5.addConstraint(Sketcher.Constraint("Equal", 0, 1))
sketch5.addConstraint(Sketcher.Constraint("Horizontal", 0, 3, 1, 3))
sketch5.addConstraint(Sketcher.Constraint("Diameter", 0, 2.3))
sketch5.addConstraint(Sketcher.Constraint("DistanceX", 0, 3, -1, 1, 4.0))
sketch5.addConstraint(Sketcher.Constraint("DistanceY", -1, 1, 0, 3, 6.0))
sketch5.addConstraint(Sketcher.Constraint("DistanceX", 1, 3, -1, 1, 146.0))
sketch5.setExpression("Constraints[2]", "Params.sketch5_diameter")
pocket3 = body.newObject("PartDesign::Pocket", "Pocket002")
pocket3.Profile = sketch5
pocket3.setExpression("Length", "Params.pocket3_length")

# Sketch on XY plane
sketch6 = body.newObject("Sketcher::SketchObject", "Sketch005")
sketch6.AttachmentSupport = (doc.getObject("XY_Plane"), [""])
sketch6.MapMode = "FlatFace"
sketch6.AttachmentOffset = App.Placement(V(0, 0, 10), App.Rotation())
add_polygon(sketch6, [(-150, 217), (-150, 202), (-135, 202), (-135, 217)])  # lines 0-3
add_polygon(sketch6, [(-150, 15), (-150, 0), (-135, 0), (-135, 15)])  # lines 4-7
sketch6.addConstraint(Sketcher.Constraint("Vertical", 0))
sketch6.addConstraint(Sketcher.Constraint("Horizontal", 1))
sketch6.addConstraint(Sketcher.Constraint("Vertical", 2))
sketch6.addConstraint(Sketcher.Constraint("Horizontal", 3))
sketch6.addConstraint(Sketcher.Constraint("Vertical", 4))
sketch6.addConstraint(Sketcher.Constraint("Horizontal", 5))
sketch6.addConstraint(Sketcher.Constraint("Vertical", 6))
sketch6.addConstraint(Sketcher.Constraint("Horizontal", 7))
sketch6.addConstraint(Sketcher.Constraint("PointOnObject", 4, 2, -1))
sketch6.addConstraint(Sketcher.Constraint("Vertical", 3, 2, 4, 2))
sketch6.addConstraint(Sketcher.Constraint("Vertical", 2, 2, 5, 2))
sketch6.addConstraint(Sketcher.Constraint("Equal", 7, 0))
sketch6.addConstraint(Sketcher.Constraint("Equal", 2, 4))
sketch6.addConstraint(Sketcher.Constraint("DistanceX", 1, 1, 1, 2, 15.0))
sketch6.addConstraint(Sketcher.Constraint("DistanceX", 0, 2, -1, 1, 150.0))
sketch6.addConstraint(Sketcher.Constraint("DistanceY", -1, 1, 0, 2, 202.0))
sketch6.setExpression("Constraints[21]", "Params.sketch6_width")
pad3 = body.newObject("PartDesign::Pad", "Pad002")
pad3.Profile = sketch6
pad3.setExpression("Length", "Params.pad3_length")

doc.recompute()
